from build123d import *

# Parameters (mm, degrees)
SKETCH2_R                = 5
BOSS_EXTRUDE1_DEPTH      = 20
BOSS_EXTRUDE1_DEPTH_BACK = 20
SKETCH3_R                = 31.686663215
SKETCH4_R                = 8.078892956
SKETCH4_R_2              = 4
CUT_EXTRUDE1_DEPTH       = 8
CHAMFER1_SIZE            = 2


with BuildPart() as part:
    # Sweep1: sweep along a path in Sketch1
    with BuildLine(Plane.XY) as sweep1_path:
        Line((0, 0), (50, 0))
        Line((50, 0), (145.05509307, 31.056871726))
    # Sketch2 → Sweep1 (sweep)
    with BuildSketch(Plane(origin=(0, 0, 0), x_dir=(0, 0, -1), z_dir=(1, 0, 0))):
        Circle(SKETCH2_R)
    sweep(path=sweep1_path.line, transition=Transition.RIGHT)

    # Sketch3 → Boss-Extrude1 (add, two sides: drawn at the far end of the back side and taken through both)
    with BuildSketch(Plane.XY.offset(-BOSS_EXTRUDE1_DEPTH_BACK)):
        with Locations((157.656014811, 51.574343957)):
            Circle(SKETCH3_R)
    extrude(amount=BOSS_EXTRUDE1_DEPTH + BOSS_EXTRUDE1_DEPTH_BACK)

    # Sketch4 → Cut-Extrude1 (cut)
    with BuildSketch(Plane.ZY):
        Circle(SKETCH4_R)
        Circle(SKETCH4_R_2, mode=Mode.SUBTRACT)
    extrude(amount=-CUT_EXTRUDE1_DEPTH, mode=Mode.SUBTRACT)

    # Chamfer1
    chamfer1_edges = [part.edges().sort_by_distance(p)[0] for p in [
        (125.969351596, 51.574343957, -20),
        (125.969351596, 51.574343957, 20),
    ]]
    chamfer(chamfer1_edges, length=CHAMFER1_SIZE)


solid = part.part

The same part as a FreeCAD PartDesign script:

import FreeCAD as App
import Part
import Sketcher

V = App.Vector
Q = App.Units.Quantity


def edges_at(feature, points):
    """Names of the edges that pass closest to the given points."""
    edges = feature.Shape.Edges
    near = lambda p: min(range(len(edges)), key=lambda i: edges[i].distToShape(Part.Vertex(*p))[0])
    return sorted({f"Edge{near(p) + 1}" for p in points})

doc = App.newDocument("Part")
params = doc.addObject("Spreadsheet::Sheet", "Params")
for row, (alias, value) in enumerate([
    ("sketch1_diameter", "10 mm"),
    ("sketch2_width", "50 mm"),
    ("sketch2_length", "100 mm"),
    ("pad1_length", "20 mm"),
    ("pad1_length2", "20 mm"),
    ("sketch4_diameter", "8 mm"),
    ("pocket1_length", "8 mm"),
    ("chamfer_size", "2 mm"),
], start=1):
    params.set(f"A{row}", alias)
    params.set(f"B{row}", "=" + value)
    params.setAlias(f"B{row}", alias)

body = doc.addObject("PartDesign::Body", "Body")

# Sketch on YZ plane
sketch1 = body.newObject("Sketcher::SketchObject", "Sketch")
sketch1.AttachmentSupport = (doc.getObject("YZ_Plane"), [""])
sketch1.MapMode = "FlatFace"
sketch1.addGeometry(Part.Circle(V(0, 0, 0), V(0, 0, 1), 5), False)
sketch1.addConstraint([
    Sketcher.Constraint("Coincident", 0, 3, -1, 1),
    Sketcher.Constraint("Diameter", 0, Q("10 mm")),
])
sketch1.setExpression("Constraints[1]", "Params.sketch1_diameter")

# Sketch on XY plane
sketch2 = body.newObject("Sketcher::SketchObject", "Sketch001")
sketch2.AttachmentSupport = (doc.getObject("XY_Plane"), [""])
sketch2.MapMode = "FlatFace"
sketch2.addGeometry([
    Part.LineSegment(V(0, 0, 0), V(50, 0, 0)),
    Part.LineSegment(V(50, 0, 0), V(145, 31, 0)),
], False)
sketch2.addConstraint([
    Sketcher.Constraint("Coincident", 0, 2, 1, 1),
    Sketcher.Constraint("Horizontal", 0),
    Sketcher.Constraint("Coincident", 0, 1, -1, 1),
    Sketcher.Constraint("DistanceX", 0, 1, 0, 2, Q("50 mm")),
    Sketcher.Constraint("Distance", 1, Q("100 mm")),
    Sketcher.Constraint("DistanceY", -1, 1, 1, 2, Q("31.056872 mm")),
])
sketch2.setExpression("Constraints[3]", "Params.sketch2_width")
sketch2.setExpression("Constraints[4]", "Params.sketch2_length")
doc.recompute()

additivepipe = body.newObject("PartDesign::AdditivePipe", "AdditivePipe")
additivepipe.Profile = sketch1
additivepipe.Spine = (sketch2, ["Edge1", "Edge2"])
additivepipe.Transition = "Right corner"

# Sketch on XY plane
sketch3 = body.newObject("Sketcher::SketchObject", "Sketch002")
sketch3.AttachmentSupport = (doc.getObject("XY_Plane"), [""])
sketch3.MapMode = "FlatFace"
sketch3.addGeometry(Part.Circle(V(158, 52, 0), V(0, 0, 1), 32), False)
sketch3.addConstraint([
    Sketcher.Constraint("Diameter", 0, Q("63.373326 mm")),
    Sketcher.Constraint("DistanceX", -1, 1, 0, 3, Q("157.656015 mm")),
    Sketcher.Constraint("DistanceY", -1, 1, 0, 3, Q("51.574344 mm")),
])
pad1 = body.newObject("PartDesign::Pad", "Pad")
pad1.Profile = sketch3
pad1.Type = "TwoLengths"
pad1.setExpression("Length", "Params.pad1_length")
pad1.setExpression("Length2", "Params.pad1_length2")

# Sketch on YZ plane
sketch4 = body.newObject("Sketcher::SketchObject", "Sketch003")
sketch4.AttachmentSupport = (doc.getObject("YZ_Plane"), [""])
sketch4.MapMode = "FlatFace"
sketch4.addGeometry([
    Part.Circle(V(0, 0, 0), V(0, 0, 1), 8.1),
    Part.Circle(V(0, 0, 0), V(0, 0, 1), 4),
], False)
sketch4.addConstraint([
    Sketcher.Constraint("Coincident", 0, 3, -1, 1),
    Sketcher.Constraint("Coincident", 1, 3, -1, 1),
    Sketcher.Constraint("Diameter", 1, Q("8 mm")),
    Sketcher.Constraint("Diameter", 0, Q("16.157786 mm")),
])
sketch4.setExpression("Constraints[2]", "Params.sketch4_diameter")
pocket1 = body.newObject("PartDesign::Pocket", "Pocket")
pocket1.Profile = sketch4
pocket1.setExpression("Length", "Params.pocket1_length")
pocket1.Reversed = True
doc.recompute()

chamfer = body.newObject("PartDesign::Chamfer", "Chamfer")
chamfer.Base = (pocket1, edges_at(pocket1, [(125.969, 51.574, -20), (125.969, 51.574, 20)]))
chamfer.setExpression("Size", "Params.chamfer_size")

doc.recompute()
